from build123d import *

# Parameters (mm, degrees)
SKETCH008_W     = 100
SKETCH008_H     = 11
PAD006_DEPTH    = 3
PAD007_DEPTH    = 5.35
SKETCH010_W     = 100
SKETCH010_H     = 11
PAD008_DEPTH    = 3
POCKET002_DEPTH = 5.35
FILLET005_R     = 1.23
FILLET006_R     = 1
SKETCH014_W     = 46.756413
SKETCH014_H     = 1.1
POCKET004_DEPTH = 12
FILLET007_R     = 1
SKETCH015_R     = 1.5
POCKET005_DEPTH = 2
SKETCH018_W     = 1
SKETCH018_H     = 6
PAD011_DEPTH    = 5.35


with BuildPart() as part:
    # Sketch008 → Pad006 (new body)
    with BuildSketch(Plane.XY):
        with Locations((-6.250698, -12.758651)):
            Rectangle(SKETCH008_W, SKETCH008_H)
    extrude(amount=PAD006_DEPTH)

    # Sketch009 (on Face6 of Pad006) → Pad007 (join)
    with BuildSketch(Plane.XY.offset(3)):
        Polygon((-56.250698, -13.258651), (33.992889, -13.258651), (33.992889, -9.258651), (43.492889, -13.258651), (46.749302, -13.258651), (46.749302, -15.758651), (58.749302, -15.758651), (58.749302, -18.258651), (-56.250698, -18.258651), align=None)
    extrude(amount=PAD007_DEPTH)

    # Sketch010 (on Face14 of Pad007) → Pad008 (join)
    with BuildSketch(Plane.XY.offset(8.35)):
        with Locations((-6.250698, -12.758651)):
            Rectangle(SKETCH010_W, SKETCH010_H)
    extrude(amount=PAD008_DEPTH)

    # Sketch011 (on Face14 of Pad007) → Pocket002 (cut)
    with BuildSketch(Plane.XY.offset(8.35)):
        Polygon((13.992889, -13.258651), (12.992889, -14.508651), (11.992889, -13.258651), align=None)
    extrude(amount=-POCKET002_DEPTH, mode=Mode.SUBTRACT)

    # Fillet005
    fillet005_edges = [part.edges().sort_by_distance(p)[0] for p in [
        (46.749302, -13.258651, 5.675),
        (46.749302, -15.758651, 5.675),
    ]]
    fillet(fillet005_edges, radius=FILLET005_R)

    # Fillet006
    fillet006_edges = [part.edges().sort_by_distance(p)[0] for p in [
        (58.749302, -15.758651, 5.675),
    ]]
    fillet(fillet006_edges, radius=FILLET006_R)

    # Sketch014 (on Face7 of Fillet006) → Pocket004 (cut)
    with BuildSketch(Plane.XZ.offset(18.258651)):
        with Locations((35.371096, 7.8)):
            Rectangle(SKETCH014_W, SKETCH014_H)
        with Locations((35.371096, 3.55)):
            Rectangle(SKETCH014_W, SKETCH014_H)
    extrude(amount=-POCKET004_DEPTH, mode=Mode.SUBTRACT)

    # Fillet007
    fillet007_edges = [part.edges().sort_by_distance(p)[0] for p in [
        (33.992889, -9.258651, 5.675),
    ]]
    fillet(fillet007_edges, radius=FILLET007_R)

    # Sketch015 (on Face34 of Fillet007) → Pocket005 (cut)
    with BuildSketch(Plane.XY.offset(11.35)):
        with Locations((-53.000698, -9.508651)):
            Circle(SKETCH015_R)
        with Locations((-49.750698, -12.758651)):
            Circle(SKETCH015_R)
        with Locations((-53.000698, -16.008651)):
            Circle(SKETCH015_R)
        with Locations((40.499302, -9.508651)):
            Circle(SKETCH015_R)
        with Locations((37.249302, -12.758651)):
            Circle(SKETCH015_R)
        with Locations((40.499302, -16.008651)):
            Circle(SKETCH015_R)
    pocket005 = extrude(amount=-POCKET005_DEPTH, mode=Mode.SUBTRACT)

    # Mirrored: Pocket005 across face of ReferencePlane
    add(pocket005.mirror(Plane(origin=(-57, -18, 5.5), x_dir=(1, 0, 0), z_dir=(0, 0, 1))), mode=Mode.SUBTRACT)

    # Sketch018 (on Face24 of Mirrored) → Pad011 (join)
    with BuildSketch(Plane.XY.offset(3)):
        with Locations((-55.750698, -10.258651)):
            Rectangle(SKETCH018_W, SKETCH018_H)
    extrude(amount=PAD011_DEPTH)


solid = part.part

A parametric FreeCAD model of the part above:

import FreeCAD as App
import Part
import Sketcher
from FreeCAD import Vector


def edges_at(feature, points):
    """Names of the edges that pass closest to the given points."""
    edges = feature.Shape.Edges
    near = lambda p: min(range(len(edges)), key=lambda i: edges[i].distToShape(Part.Vertex(*p))[0])
    return sorted({f"Edge{near(p) + 1}" for p in points})

doc = App.newDocument("Part")
body = doc.addObject("PartDesign::Body", "Body")

sketch1 = body.newObject("Sketcher::SketchObject", "Sketch")
sketch1.AttachmentSupport = (doc.getObject("XY_Plane"), [""])
sketch1.MapMode = "FlatFace"
sketch1.addGeometry(Part.LineSegment(Vector(-56.250698, -7.258651, 0), Vector(-56.250698, -18.258651, 0)), False)
sketch1.addGeometry(Part.LineSegment(Vector(-56.250698, -18.258651, 0), Vector(43.749302, -18.258651, 0)), False)
sketch1.addGeometry(Part.LineSegment(Vector(43.749302, -18.258651, 0), Vector(43.749302, -7.258651, 0)), False)
sketch1.addGeometry(Part.LineSegment(Vector(43.749302, -7.258651, 0), Vector(-56.250698, -7.258651, 0)), False)
sketch1.addConstraint(Sketcher.Constraint("Coincident", 0, 2, 1, 1))
sketch1.addConstraint(Sketcher.Constraint("Coincident", 1, 2, 2, 1))
sketch1.addConstraint(Sketcher.Constraint("Coincident", 2, 2, 3, 1))
sketch1.addConstraint(Sketcher.Constraint("Coincident", 3, 2, 0, 1))
sketch1.addConstraint(Sketcher.Constraint("Vertical", 0))
sketch1.addConstraint(Sketcher.Constraint("Horizontal", 1))
sketch1.addConstraint(Sketcher.Constraint("Vertical", 2))
sketch1.addConstraint(Sketcher.Constraint("Horizontal", 3))
sketch1.addConstraint(Sketcher.Constraint("DistanceX", 1, 1, 1, 2, 100.0))
sketch1.addConstraint(Sketcher.Constraint("DistanceY", 0, 2, 0, 1, 11.0))
sketch1.addConstraint(Sketcher.Constraint("DistanceY", 0, 2, -1, 1, 18.258651))
sketch1.addConstraint(Sketcher.Constraint("DistanceX", 0, 2, -1, 1, 56.250698))
pad1 = body.newObject("PartDesign::Pad", "Pad")
pad1.Profile = sketch1
pad1.Length = 3

sketch2 = body.newObject("Sketcher::SketchObject", "Sketch001")
sketch2.AttachmentSupport = (doc.getObject("XY_Plane"), [""])
sketch2.MapMode = "FlatFace"
sketch2.AttachmentOffset = App.Placement(Vector(0, 0, 3), App.Rotation())
sketch2.addGeometry(Part.LineSegment(Vector(33.992889, -13.258651, 0), Vector(-56.250698, -13.258651, 0)), False)
sketch2.addGeometry(Part.LineSegment(Vector(-56.250698, -13.258651, 0), Vector(-56.250698, -18.258651, 0)), False)
sketch2.addGeometry(Part.LineSegment(Vector(-56.250698, -18.258651, 0), Vector(58.749302, -18.258651, 0)), False)
sketch2.addGeometry(Part.LineSegment(Vector(58.749302, -18.258651, 0), Vector(58.749302, -15.758651, 0)), False)
sketch2.addGeometry(Part.LineSegment(Vector(58.749302, -15.758651, 0), Vector(46.749302, -15.758651, 0)), False)
sketch2.addGeometry(Part.LineSegment(Vector(46.749302, -15.758651, 0), Vector(46.749302, -13.258651, 0)), False)
sketch2.addGeometry(Part.LineSegment(Vector(46.749302, -13.258651, 0), Vector(43.492889, -13.258651, 0)), False)
sketch2.addGeometry(Part.LineSegment(Vector(43.492889, -13.258651, 0), Vector(33.992889, -9.258651, 0)), False)
sketch2.addGeometry(Part.LineSegment(Vector(33.992889, -9.258651, 0), Vector(33.992889, -13.258651, 0)), False)
sketch2.addConstraint(Sketcher.Constraint("Coincident", 0, 2, 1, 1))
sketch2.addConstraint(Sketcher.Constraint("Coincident", 1, 2, 2, 1))
sketch2.addConstraint(Sketcher.Constraint("Coincident", 2, 2, 3, 1))
sketch2.addConstraint(Sketcher.Constraint("Coincident", 3, 2, 4, 1))
sketch2.addConstraint(Sketcher.Constraint("Coincident", 4, 2, 5, 1))
sketch2.addConstraint(Sketcher.Constraint("Coincident", 5, 2, 6, 1))
sketch2.addConstraint(Sketcher.Constraint("Coincident", 6, 2, 7, 1))
sketch2.addConstraint(Sketcher.Constraint("Coincident", 7, 2, 8, 1))
sketch2.addConstraint(Sketcher.Constraint("Coincident", 8, 2, 0, 1))
sketch2.addConstraint(Sketcher.Constraint("Horizontal", 0))
sketch2.addConstraint(Sketcher.Constraint("Vertical", 1))
sketch2.addConstraint(Sketcher.Constraint("Horizontal", 2))
sketch2.addConstraint(Sketcher.Constraint("Vertical", 3))
sketch2.addConstraint(Sketcher.Constraint("Horizontal", 4))
sketch2.addConstraint(Sketcher.Constraint("Vertical", 5))
sketch2.addConstraint(Sketcher.Constraint("Horizontal", 6))
sketch2.addConstraint(Sketcher.Constraint("Vertical", 8))
sketch2.addConstraint(Sketcher.Constraint("Horizontal", 0, 2, 5, 2))
sketch2.addConstraint(Sketcher.Constraint("Equal", 3, 5))
sketch2.addConstraint(Sketcher.Constraint("DistanceX", 2, 1, 2, 2, 115.0))
sketch2.addConstraint(Sketcher.Constraint("DistanceX", 4, 2, 4, 1, 12.0))
sketch2.addConstraint(Sketcher.Constraint("DistanceY", 1, 2, 1, 1, 5.0))
sketch2.addConstraint(Sketcher.Constraint("DistanceY", 8, 2, 8, 1, 4.0))
sketch2.addConstraint(Sketcher.Constraint("DistanceX", 7, 2, 6, 2, 9.5))
sketch2.addConstraint(Sketcher.Constraint("DistanceX", 0, 2, 0, 1, 90.243587))
sketch2.addConstraint(Sketcher.Constraint("DistanceY", 0, 2, -1, 1, 13.258651))
sketch2.addConstraint(Sketcher.Constraint("DistanceX", -1, 1, 6, 2, 43.492889))
pad2 = body.newObject("PartDesign::Pad", "Pad001")
pad2.Profile = sketch2
pad2.Length = 5.35

sketch3 = body.newObject("Sketcher::SketchObject", "Sketch002")
sketch3.AttachmentSupport = (doc.getObject("XY_Plane"), [""])
sketch3.MapMode = "FlatFace"
sketch3.AttachmentOffset = App.Placement(Vector(0, 0, 8.35), App.Rotation())
sketch3.addGeometry(Part.LineSegment(Vector(-56.250698, -7.258651, 0), Vector(-56.250698, -18.258651, 0)), False)
sketch3.addGeometry(Part.LineSegment(Vector(-56.250698, -18.258651, 0), Vector(43.749302, -18.258651, 0)), False)
sketch3.addGeometry(Part.LineSegment(Vector(43.749302, -18.258651, 0), Vector(43.749302, -7.258651, 0)), False)
sketch3.addGeometry(Part.LineSegment(Vector(43.749302, -7.258651, 0), Vector(-56.250698, -7.258651, 0)), False)
sketch3.addConstraint(Sketcher.Constraint("Coincident", 0, 2, 1, 1))
sketch3.addConstraint(Sketcher.Constraint("Coincident", 1, 2, 2, 1))
sketch3.addConstraint(Sketcher.Constraint("Coincident", 2, 2, 3, 1))
sketch3.addConstraint(Sketcher.Constraint("Coincident", 3, 2, 0, 1))
sketch3.addConstraint(Sketcher.Constraint("Vertical", 0))
sketch3.addConstraint(Sketcher.Constraint("Horizontal", 1))
sketch3.addConstraint(Sketcher.Constraint("Vertical", 2))
sketch3.addConstraint(Sketcher.Constraint("Horizontal", 3))
sketch3.addConstraint(Sketcher.Constraint("DistanceX", 1, 1, 1, 2, 100.0))
sketch3.addConstraint(Sketcher.Constraint("DistanceY", 0, 2, 0, 1, 11.0))
sketch3.addConstraint(Sketcher.Constraint("DistanceY", 0, 2, -1, 1, 18.258651))
sketch3.addConstraint(Sketcher.Constraint("DistanceX", 0, 2, -1, 1, 56.250698))
pad3 = body.newObject("PartDesign::Pad", "Pad002")
pad3.Profile = sketch3
pad3.Length = 3

sketch4 = body.newObject("Sketcher::SketchObject", "Sketch003")
sketch4.AttachmentSupport = (doc.getObject("XY_Plane"), [""])
sketch4.MapMode = "FlatFace"
sketch4.AttachmentOffset = App.Placement(Vector(0, 0, 8.35), App.Rotation())
sketch4.addGeometry(Part.LineSegment(Vector(12.992889, -14.508651, 0), Vector(13.992889, -13.258651, 0)), False)
sketch4.addGeometry(Part.LineSegment(Vector(13.992889, -13.258651, 0), Vector(11.992889, -13.258651, 0)), False)
sketch4.addGeometry(Part.LineSegment(Vector(11.992889, -13.258651, 0), Vector(12.992889, -14.508651, 0)), False)
sketch4.addConstraint(Sketcher.Constraint("Coincident", 0, 2, 1, 1))
sketch4.addConstraint(Sketcher.Constraint("Coincident", 1, 2, 2, 1))
sketch4.addConstraint(Sketcher.Constraint("Coincident", 2, 2, 0, 1))
sketch4.addConstraint(Sketcher.Constraint("Horizontal", 1))
sketch4.addConstraint(Sketcher.Constraint("Equal", 0, 2))
sketch4.addConstraint(Sketcher.Constraint("DistanceX", 1, 2, 1, 1, 2.0))
sketch4.addConstraint(Sketcher.Constraint("DistanceY", 2, 2, 0, 2, 1.25))
sketch4.addConstraint(Sketcher.Constraint("DistanceX", -1, 1, 0, 2, 13.992889))
sketch4.addConstraint(Sketcher.Constraint("DistanceY", 0, 2, -1, 1, 13.258651))
pocket1 = body.newObject("PartDesign::Pocket", "Pocket")
pocket1.Profile = sketch4
pocket1.Length = 5.35
doc.recompute()

fillet = body.newObject("PartDesign::Fillet", "Fillet")
fillet.Base = (pocket1, edges_at(pocket1, [(46.749, -13.259, 5.675), (46.749, -15.759, 5.675)]))
fillet.Radius = 1.23
doc.recompute()

fillet2 = body.newObject("PartDesign::Fillet", "Fillet001")
fillet2.Base = (fillet, edges_at(fillet, [(58.749, -15.759, 5.675)]))
fillet2.Radius = 1

sketch5 = body.newObject("Sketcher::SketchObject", "Sketch004")
sketch5.AttachmentSupport = (doc.getObject("XZ_Plane"), [""])
sketch5.MapMode = "FlatFace"
sketch5.AttachmentOffset = App.Placement(Vector(0, 0, 18.258651), App.Rotation())
sketch5.addGeometry(Part.LineSegment(Vector(11.99289, 8.35, 0), Vector(11.99289, 7.25, 0)), False)
sketch5.addGeometry(Part.LineSegment(Vector(11.99289, 7.25, 0), Vector(58.749302, 7.25, 0)), False)
sketch5.addGeometry(Part.LineSegment(Vector(58.749302, 7.25, 0), Vector(58.749302, 8.35, 0)), False)
sketch5.addGeometry(Part.LineSegment(Vector(58.749302, 8.35, 0), Vector(11.99289, 8.35, 0)), False)
sketch5.addGeometry(Part.LineSegment(Vector(11.99289, 4.1, 0), Vector(11.99289, 3, 0)), False)
sketch5.addGeometry(Part.LineSegment(Vector(11.99289, 3, 0), Vector(58.749302, 3, 0)), False)
sketch5.addGeometry(Part.LineSegment(Vector(58.749302, 3, 0), Vector(58.749302, 4.1, 0)), False)
sketch5.addGeometry(Part.LineSegment(Vector(58.749302, 4.1, 0), Vector(11.99289, 4.1, 0)), False)
sketch5.addConstraint(Sketcher.Constraint("Coincident", 0, 2, 1, 1))
sketch5.addConstraint(Sketcher.Constraint("Coincident", 1, 2, 2, 1))
sketch5.addConstraint(Sketcher.Constraint("Coincident", 2, 2, 3, 1))
sketch5.addConstraint(Sketcher.Constraint("Coincident", 3, 2, 0, 1))
sketch5.addConstraint(Sketcher.Constraint("Coincident", 4, 2, 5, 1))
sketch5.addConstraint(Sketcher.Constraint("Coincident", 5, 2, 6, 1))
sketch5.addConstraint(Sketcher.Constraint("Coincident", 6, 2, 7, 1))
sketch5.addConstraint(Sketcher.Constraint("Coincident", 7, 2, 4, 1))
sketch5.addConstraint(Sketcher.Constraint("Vertical", 0))
sketch5.addConstraint(Sketcher.Constraint("Horizontal", 1))
sketch5.addConstraint(Sketcher.Constraint("Vertical", 2))
sketch5.addConstraint(Sketcher.Constraint("Horizontal", 3))
sketch5.addConstraint(Sketcher.Constraint("Vertical", 4))
sketch5.addConstraint(Sketcher.Constraint("Horizontal", 5))
sketch5.addConstraint(Sketcher.Constraint("Vertical", 6))
sketch5.addConstraint(Sketcher.Constraint("Horizontal", 7))
sketch5.addConstraint(Sketcher.Constraint("Vertical", 3, 2, 4, 2))
sketch5.addConstraint(Sketcher.Constraint("Vertical", 2, 2, 5, 2))
sketch5.addConstraint(Sketcher.Constraint("Equal", 2, 4))
sketch5.addConstraint(Sketcher.Constraint("DistanceY", 0, 2, 0, 1, 1.1))
sketch5.addConstraint(Sketcher.Constraint("DistanceY", -1, 1, 4, 2, 3.0))
sketch5.addConstraint(Sketcher.Constraint("DistanceY", -1, 1, 0, 2, 7.25))
sketch5.addConstraint(Sketcher.Constraint("DistanceX", 1, 1, 1, 2, 46.756413))
sketch5.addConstraint(Sketcher.Constraint("DistanceX", -1, 1, 0, 2, 11.99289))
pocket2 = body.newObject("PartDesign::Pocket", "Pocket001")
pocket2.Profile = sketch5
pocket2.Length = 12
doc.recompute()

fillet3 = body.newObject("PartDesign::Fillet", "Fillet002")
fillet3.Base = (pocket2, edges_at(pocket2, [(33.993, -9.259, 5.675)]))
fillet3.Radius = 1

sketch6 = body.newObject("Sketcher::SketchObject", "Sketch005")
sketch6.AttachmentSupport = (doc.getObject("XY_Plane"), [""])
sketch6.MapMode = "FlatFace"
sketch6.AttachmentOffset = App.Placement(Vector(0, 0, 11.35), App.Rotation())
sketch6.addGeometry(Part.Circle(Vector(-53.000698, -9.508651, 0), Vector(0, 0, 1), 1.5), False)
sketch6.addGeometry(Part.Circle(Vector(-49.750698, -12.758651, 0), Vector(0, 0, 1), 1.5), False)
sketch6.addGeometry(Part.Circle(Vector(-53.000698, -16.008651, 0), Vector(0, 0, 1), 1.5), False)
sketch6.addGeometry(Part.Circle(Vector(40.499302, -9.508651, 0), Vector(0, 0, 1), 1.5), False)
sketch6.addGeometry(Part.Circle(Vector(37.249302, -12.758651, 0), Vector(0, 0, 1), 1.5), False)
sketch6.addGeometry(Part.Circle(Vector(40.499302, -16.008651, 0), Vector(0, 0, 1), 1.5), False)
sketch6.addConstraint(Sketcher.Constraint("Equal", 0, 1))
sketch6.addConstraint(Sketcher.Constraint("Equal", 1, 2))
sketch6.addConstraint(Sketcher.Constraint("Equal", 2, 3))
sketch6.addConstraint(Sketcher.Constraint("Equal", 3, 4))
sketch6.addConstraint(Sketcher.Constraint("Equal", 4, 5))
sketch6.addConstraint(Sketcher.Constraint("Horizontal", 0, 3, 3, 3))
sketch6.addConstraint(Sketcher.Constraint("Horizontal", 1, 3, 4, 3))
sketch6.addConstraint(Sketcher.Constraint("Horizontal", 2, 3, 5, 3))
sketch6.addConstraint(Sketcher.Constraint("Vertical", 0, 3, 2, 3))
sketch6.addConstraint(Sketcher.Constraint("Vertical", 3, 3, 5, 3))
sketch6.addConstraint(Sketcher.Constraint("Diameter", 0, 3.0))
sketch6.addConstraint(Sketcher.Constraint("DistanceX", 1, 3, 4, 3, 87.0))
sketch6.addConstraint(Sketcher.Constraint("DistanceY", 2, 3, 0, 3, 6.5))
sketch6.addConstraint(Sketcher.Constraint("DistanceX", 0, 3, 3, 3, 93.5))
sketch6.addConstraint(Sketcher.Constraint("DistanceX", 0, 3, 1, 3, 3.25))
sketch6.addConstraint(Sketcher.Constraint("DistanceY", 1, 3, 0, 3, 3.25))
sketch6.addConstraint(Sketcher.Constraint("DistanceY", 0, 3, -1, 1, 9.508651))
sketch6.addConstraint(Sketcher.Constraint("DistanceX", 0, 3, -1, 1, 53.000698))
pocket3 = body.newObject("PartDesign::Pocket", "Pocket002")
pocket3.Profile = sketch6
pocket3.Length = 2
doc.recompute()

datumplane = body.newObject("PartDesign::Plane", "DatumPlane")
datumplane.AttachmentSupport = (doc.getObject("XY_Plane"), [""])
datumplane.MapMode = "FlatFace"
datumplane.AttachmentOffset = App.Placement(Vector(0, 0, 5.5), App.Rotation())
mirrored = body.newObject("PartDesign::Mirrored", "Mirrored")
mirrored.Originals = [pocket3]
mirrored.MirrorPlane = (datumplane, [""])
body.Tip = mirrored

sketch7 = body.newObject("Sketcher::SketchObject", "Sketch006")
sketch7.AttachmentSupport = (doc.getObject("XY_Plane"), [""])
sketch7.MapMode = "FlatFace"
sketch7.AttachmentOffset = App.Placement(Vector(0, 0, 3), App.Rotation())
sketch7.addGeometry(Part.LineSegment(Vector(-56.250698, -7.258651, 0), Vector(-56.250698, -13.258651, 0)), False)
sketch7.addGeometry(Part.LineSegment(Vector(-56.250698, -13.258651, 0), Vector(-55.250698, -13.258651, 0)), False)
sketch7.addGeometry(Part.LineSegment(Vector(-55.250698, -13.258651, 0), Vector(-55.250698, -7.258651, 0)), False)
sketch7.addGeometry(Part.LineSegment(Vector(-55.250698, -7.258651, 0), Vector(-56.250698, -7.258651, 0)), False)
sketch7.addConstraint(Sketcher.Constraint("Coincident", 0, 2, 1, 1))
sketch7.addConstraint(Sketcher.Constraint("Coincident", 1, 2, 2, 1))
sketch7.addConstraint(Sketcher.Constraint("Coincident", 2, 2, 3, 1))
sketch7.addConstraint(Sketcher.Constraint("Coincident", 3, 2, 0, 1))
sketch7.addConstraint(Sketcher.Constraint("Vertical", 0))
sketch7.addConstraint(Sketcher.Constraint("Horizontal", 1))
sketch7.addConstraint(Sketcher.Constraint("Vertical", 2))
sketch7.addConstraint(Sketcher.Constraint("Horizontal", 3))
sketch7.addConstraint(Sketcher.Constraint("DistanceX", 1, 1, 1, 2, 1.0))
sketch7.addConstraint(Sketcher.Constraint("DistanceY", 0, 2, 0, 1, 6.0))
sketch7.addConstraint(Sketcher.Constraint("DistanceY", 0, 2, -1, 1, 13.258651))
sketch7.addConstraint(Sketcher.Constraint("DistanceX", 0, 2, -1, 1, 56.250698))
pad4 = body.newObject("PartDesign::Pad", "Pad003")
pad4.Profile = sketch7
pad4.Length = 5.35

doc.recompute()
